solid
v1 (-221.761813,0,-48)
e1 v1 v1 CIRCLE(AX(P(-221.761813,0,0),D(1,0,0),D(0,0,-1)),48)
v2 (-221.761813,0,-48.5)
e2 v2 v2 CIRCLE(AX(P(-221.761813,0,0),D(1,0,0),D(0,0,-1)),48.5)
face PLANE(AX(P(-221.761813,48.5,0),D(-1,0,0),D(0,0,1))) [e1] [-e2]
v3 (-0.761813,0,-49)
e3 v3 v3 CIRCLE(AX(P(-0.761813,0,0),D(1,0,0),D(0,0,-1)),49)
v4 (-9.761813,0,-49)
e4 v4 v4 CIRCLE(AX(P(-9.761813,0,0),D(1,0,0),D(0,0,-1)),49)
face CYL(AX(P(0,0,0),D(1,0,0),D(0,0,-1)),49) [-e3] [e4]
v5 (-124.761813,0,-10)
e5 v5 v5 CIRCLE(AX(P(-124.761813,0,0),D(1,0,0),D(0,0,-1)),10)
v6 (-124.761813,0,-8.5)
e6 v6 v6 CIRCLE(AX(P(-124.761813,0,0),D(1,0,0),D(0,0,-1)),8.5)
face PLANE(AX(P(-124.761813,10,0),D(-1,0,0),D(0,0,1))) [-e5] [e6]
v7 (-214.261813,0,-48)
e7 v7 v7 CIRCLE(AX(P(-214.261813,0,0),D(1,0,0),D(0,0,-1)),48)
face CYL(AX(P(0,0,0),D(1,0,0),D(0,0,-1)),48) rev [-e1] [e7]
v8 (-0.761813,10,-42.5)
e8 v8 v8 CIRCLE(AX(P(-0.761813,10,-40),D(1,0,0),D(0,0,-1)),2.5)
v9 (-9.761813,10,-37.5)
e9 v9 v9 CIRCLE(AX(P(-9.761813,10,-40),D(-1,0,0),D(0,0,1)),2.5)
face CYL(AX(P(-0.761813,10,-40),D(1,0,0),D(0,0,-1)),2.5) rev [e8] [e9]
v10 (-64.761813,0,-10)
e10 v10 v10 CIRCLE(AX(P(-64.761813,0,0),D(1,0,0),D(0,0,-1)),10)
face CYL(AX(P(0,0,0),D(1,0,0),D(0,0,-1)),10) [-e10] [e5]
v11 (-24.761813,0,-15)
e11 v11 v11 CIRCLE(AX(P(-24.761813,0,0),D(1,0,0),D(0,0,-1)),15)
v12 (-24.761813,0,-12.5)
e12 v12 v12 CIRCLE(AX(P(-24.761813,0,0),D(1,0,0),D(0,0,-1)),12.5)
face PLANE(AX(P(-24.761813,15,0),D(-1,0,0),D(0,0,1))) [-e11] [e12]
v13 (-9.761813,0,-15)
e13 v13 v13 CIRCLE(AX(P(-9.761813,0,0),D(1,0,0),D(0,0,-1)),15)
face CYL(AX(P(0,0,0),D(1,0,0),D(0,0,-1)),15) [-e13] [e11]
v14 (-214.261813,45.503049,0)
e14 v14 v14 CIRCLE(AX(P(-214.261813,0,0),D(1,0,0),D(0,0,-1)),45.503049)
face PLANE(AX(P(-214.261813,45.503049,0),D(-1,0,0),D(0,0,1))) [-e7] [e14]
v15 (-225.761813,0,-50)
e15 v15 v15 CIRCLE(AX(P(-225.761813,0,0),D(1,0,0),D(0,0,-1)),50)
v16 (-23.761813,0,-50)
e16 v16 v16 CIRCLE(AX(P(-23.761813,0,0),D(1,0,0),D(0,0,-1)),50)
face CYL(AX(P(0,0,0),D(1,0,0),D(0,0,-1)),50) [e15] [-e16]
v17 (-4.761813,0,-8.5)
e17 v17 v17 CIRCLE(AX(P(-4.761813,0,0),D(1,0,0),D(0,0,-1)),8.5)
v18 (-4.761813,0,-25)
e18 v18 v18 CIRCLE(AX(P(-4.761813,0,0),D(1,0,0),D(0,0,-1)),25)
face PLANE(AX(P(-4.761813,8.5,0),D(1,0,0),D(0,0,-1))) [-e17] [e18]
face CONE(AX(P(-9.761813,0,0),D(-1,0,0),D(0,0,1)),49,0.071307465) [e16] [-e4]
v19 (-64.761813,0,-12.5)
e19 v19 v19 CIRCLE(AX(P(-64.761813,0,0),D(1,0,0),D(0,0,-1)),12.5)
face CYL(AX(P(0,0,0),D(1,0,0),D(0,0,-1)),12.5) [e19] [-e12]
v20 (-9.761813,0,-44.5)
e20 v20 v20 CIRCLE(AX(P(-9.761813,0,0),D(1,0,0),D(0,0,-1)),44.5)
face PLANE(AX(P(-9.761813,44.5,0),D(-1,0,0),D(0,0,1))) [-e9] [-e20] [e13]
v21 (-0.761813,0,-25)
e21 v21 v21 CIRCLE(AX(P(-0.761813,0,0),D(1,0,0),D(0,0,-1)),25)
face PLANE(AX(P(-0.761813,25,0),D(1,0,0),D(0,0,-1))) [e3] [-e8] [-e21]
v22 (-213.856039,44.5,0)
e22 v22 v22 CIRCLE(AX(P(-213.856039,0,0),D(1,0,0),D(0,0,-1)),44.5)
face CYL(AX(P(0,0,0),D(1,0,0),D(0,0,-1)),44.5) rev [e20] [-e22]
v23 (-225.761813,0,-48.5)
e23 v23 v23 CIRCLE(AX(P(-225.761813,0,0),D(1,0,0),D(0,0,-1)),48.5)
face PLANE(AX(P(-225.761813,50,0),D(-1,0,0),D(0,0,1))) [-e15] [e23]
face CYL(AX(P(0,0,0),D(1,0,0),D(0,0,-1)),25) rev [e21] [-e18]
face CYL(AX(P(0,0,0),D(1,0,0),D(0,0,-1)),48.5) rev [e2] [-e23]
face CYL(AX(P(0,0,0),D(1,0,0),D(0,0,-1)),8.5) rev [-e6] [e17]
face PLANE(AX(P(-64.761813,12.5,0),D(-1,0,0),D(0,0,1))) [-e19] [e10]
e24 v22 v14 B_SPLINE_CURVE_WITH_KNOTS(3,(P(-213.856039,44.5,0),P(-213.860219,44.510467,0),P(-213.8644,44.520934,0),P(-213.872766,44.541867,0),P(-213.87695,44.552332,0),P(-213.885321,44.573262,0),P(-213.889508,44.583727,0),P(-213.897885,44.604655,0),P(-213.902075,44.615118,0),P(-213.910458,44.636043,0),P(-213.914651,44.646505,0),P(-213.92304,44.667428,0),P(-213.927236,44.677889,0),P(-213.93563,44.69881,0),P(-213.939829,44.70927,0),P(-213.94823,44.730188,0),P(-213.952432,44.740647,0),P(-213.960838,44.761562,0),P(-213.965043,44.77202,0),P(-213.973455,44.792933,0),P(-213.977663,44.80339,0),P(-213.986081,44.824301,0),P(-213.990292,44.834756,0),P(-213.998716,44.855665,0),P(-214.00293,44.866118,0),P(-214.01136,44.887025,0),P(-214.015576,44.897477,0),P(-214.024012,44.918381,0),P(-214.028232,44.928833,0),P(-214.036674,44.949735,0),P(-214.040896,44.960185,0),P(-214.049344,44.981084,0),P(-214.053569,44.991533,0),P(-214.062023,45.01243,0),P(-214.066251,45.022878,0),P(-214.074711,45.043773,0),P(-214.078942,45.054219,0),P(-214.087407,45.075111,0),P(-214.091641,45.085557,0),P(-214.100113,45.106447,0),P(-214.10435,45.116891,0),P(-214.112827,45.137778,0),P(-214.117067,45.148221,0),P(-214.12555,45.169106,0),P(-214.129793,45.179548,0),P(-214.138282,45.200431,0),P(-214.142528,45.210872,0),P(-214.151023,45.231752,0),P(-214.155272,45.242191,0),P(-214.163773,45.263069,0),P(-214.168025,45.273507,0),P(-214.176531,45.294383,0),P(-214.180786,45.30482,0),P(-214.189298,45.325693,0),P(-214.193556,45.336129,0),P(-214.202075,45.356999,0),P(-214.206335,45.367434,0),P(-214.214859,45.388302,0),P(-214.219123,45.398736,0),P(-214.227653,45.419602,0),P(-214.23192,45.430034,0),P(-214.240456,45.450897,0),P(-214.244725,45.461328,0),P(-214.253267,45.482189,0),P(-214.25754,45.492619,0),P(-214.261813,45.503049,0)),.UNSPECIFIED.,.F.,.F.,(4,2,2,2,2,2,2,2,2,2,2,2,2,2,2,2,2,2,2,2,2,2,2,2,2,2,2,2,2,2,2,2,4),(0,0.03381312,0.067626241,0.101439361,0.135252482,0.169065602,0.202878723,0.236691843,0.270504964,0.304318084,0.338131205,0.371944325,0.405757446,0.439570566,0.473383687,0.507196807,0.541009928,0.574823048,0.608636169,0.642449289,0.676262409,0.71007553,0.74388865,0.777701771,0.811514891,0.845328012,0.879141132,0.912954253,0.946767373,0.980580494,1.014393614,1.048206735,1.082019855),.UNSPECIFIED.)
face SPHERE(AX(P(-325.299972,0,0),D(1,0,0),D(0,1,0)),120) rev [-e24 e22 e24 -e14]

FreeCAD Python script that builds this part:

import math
import FreeCAD as App
import Part
import Sketcher

doc = App.newDocument("Part")
body = doc.addObject("PartDesign::Body", "Body")

# Sketch on XY plane
sketch1 = body.newObject("Sketcher::SketchObject", "Sketch")
sketch1.AttachmentSupport = (doc.getObject("XY_Plane"), [""])
sketch1.MapMode = "FlatFace"
sketch1.addGeometry(Part.LineSegment(App.Vector(-0.8, 25, 0), App.Vector(-0.8, 49, 0)), False)
sketch1.addGeometry(Part.LineSegment(App.Vector(-0.8, 49, 0), App.Vector(-9.8, 49, 0)), False)
sketch1.addGeometry(Part.LineSegment(App.Vector(-9.8, 49, 0), App.Vector(-23.8, 50, 0)), False)
sketch1.addGeometry(Part.LineSegment(App.Vector(-23.8, 50, 0), App.Vector(-225.8, 50, 0)), False)
sketch1.addGeometry(Part.LineSegment(App.Vector(-225.8, 50, 0), App.Vector(-225.8, 48.5, 0)), False)
sketch1.addGeometry(Part.LineSegment(App.Vector(-225.8, 48.5, 0), App.Vector(-221.8, 48.5, 0)), False)
sketch1.addGeometry(Part.LineSegment(App.Vector(-221.8, 48.5, 0), App.Vector(-221.8, 48, 0)), False)
sketch1.addGeometry(Part.LineSegment(App.Vector(-221.8, 48, 0), App.Vector(-214.3, 48, 0)), False)
sketch1.addGeometry(Part.LineSegment(App.Vector(-214.3, 48, 0), App.Vector(-214.3, 45.5, 0)), False)
sketch1.addGeometry(Part.ArcOfCircle(Part.Circle(App.Vector(-325.3, 0, 0), App.Vector(0, 0, 1), 120), math.radians(21.77), math.radians(22.28)), False)
sketch1.addGeometry(Part.LineSegment(App.Vector(-213.9, 44.5, 0), App.Vector(-9.8, 44.5, 0)), False)
sketch1.addGeometry(Part.LineSegment(App.Vector(-9.8, 44.5, 0), App.Vector(-9.8, 15, 0)), False)
sketch1.addGeometry(Part.LineSegment(App.Vector(-9.8, 15, 0), App.Vector(-24.8, 15, 0)), False)
sketch1.addGeometry(Part.LineSegment(App.Vector(-24.8, 15, 0), App.Vector(-24.8, 12.5, 0)), False)
sketch1.addGeometry(Part.LineSegment(App.Vector(-24.8, 12.5, 0), App.Vector(-64.8, 12.5, 0)), False)
sketch1.addGeometry(Part.LineSegment(App.Vector(-64.8, 12.5, 0), App.Vector(-64.8, 10, 0)), False)
sketch1.addGeometry(Part.LineSegment(App.Vector(-64.8, 10, 0), App.Vector(-124.8, 10, 0)), False)
sketch1.addGeometry(Part.LineSegment(App.Vector(-124.8, 10, 0), App.Vector(-124.8, 8.5, 0)), False)
sketch1.addGeometry(Part.LineSegment(App.Vector(-124.8, 8.5, 0), App.Vector(-4.8, 8.5, 0)), False)
sketch1.addGeometry(Part.LineSegment(App.Vector(-4.8, 8.5, 0), App.Vector(-4.8, 25, 0)), False)
sketch1.addGeometry(Part.LineSegment(App.Vector(-4.8, 25, 0), App.Vector(-0.8, 25, 0)), False)
sketch1.addConstraint(Sketcher.Constraint("Coincident", 0, 2, 1, 1))
sketch1.addConstraint(Sketcher.Constraint("Coincident", 1, 2, 2, 1))
sketch1.addConstraint(Sketcher.Constraint("Coincident", 2, 2, 3, 1))
sketch1.addConstraint(Sketcher.Constraint("Coincident", 3, 2, 4, 1))
sketch1.addConstraint(Sketcher.Constraint("Coincident", 4, 2, 5, 1))
sketch1.addConstraint(Sketcher.Constraint("Coincident", 5, 2, 6, 1))
sketch1.addConstraint(Sketcher.Constraint("Coincident", 6, 2, 7, 1))
sketch1.addConstraint(Sketcher.Constraint("Coincident", 7, 2, 8, 1))
sketch1.addConstraint(Sketcher.Constraint("Coincident", 8, 2, 9, 2))
sketch1.addConstraint(Sketcher.Constraint("Coincident", 9, 1, 10, 1))
sketch1.addConstraint(Sketcher.Constraint("Coincident", 10, 2, 11, 1))
sketch1.addConstraint(Sketcher.Constraint("Coincident", 11, 2, 12, 1))
sketch1.addConstraint(Sketcher.Constraint("Coincident", 12, 2, 13, 1))
sketch1.addConstraint(Sketcher.Constraint("Coincident", 13, 2, 14, 1))
sketch1.addConstraint(Sketcher.Constraint("Coincident", 14, 2, 15, 1))
sketch1.addConstraint(Sketcher.Constraint("Coincident", 15, 2, 16, 1))
sketch1.addConstraint(Sketcher.Constraint("Coincident", 16, 2, 17, 1))
sketch1.addConstraint(Sketcher.Constraint("Coincident", 17, 2, 18, 1))
sketch1.addConstraint(Sketcher.Constraint("Coincident", 18, 2, 19, 1))
sketch1.addConstraint(Sketcher.Constraint("Coincident", 19, 2, 20, 1))
sketch1.addConstraint(Sketcher.Constraint("Coincident", 20, 2, 0, 1))
sketch1.addConstraint(Sketcher.Constraint("Vertical", 0))
sketch1.addConstraint(Sketcher.Constraint("Horizontal", 1))
sketch1.addConstraint(Sketcher.Constraint("Horizontal", 3))
sketch1.addConstraint(Sketcher.Constraint("Vertical", 4))
sketch1.addConstraint(Sketcher.Constraint("Horizontal", 5))
sketch1.addConstraint(Sketcher.Constraint("Vertical", 6))
sketch1.addConstraint(Sketcher.Constraint("Horizontal", 7))
sketch1.addConstraint(Sketcher.Constraint("Vertical", 8))
sketch1.addConstraint(Sketcher.Constraint("Horizontal", 10))
sketch1.addConstraint(Sketcher.Constraint("Vertical", 11))
sketch1.addConstraint(Sketcher.Constraint("Horizontal", 12))
sketch1.addConstraint(Sketcher.Constraint("Vertical", 13))
sketch1.addConstraint(Sketcher.Constraint("Horizontal", 14))
sketch1.addConstraint(Sketcher.Constraint("Vertical", 15))
sketch1.addConstraint(Sketcher.Constraint("Horizontal", 16))
sketch1.addConstraint(Sketcher.Constraint("Vertical", 17))
sketch1.addConstraint(Sketcher.Constraint("Horizontal", 18))
sketch1.addConstraint(Sketcher.Constraint("Vertical", 19))
sketch1.addConstraint(Sketcher.Constraint("Horizontal", 20))
sketch1.addConstraint(Sketcher.Constraint("Vertical", 1, 2, 10, 2))
sketch1.addConstraint(Sketcher.Constraint("Equal", 5, 20))
sketch1.addConstraint(Sketcher.Constraint("Equal", 13, 15))
sketch1.addConstraint(Sketcher.Constraint("Equal", 4, 17))
sketch1.addConstraint(Sketcher.Constraint("DistanceX", 1, 2, 1, 1, 9.0))
sketch1.addConstraint(Sketcher.Constraint("DistanceX", 3, 2, 3, 1, 202.0))
sketch1.addConstraint(Sketcher.Constraint("DistanceX", 5, 1, 5, 2, 4.0))
sketch1.addConstraint(Sketcher.Constraint("DistanceX", 12, 2, 12, 1, 15.0))
sketch1.addConstraint(Sketcher.Constraint("DistanceX", 14, 2, 14, 1, 40.0))
sketch1.addConstraint(Sketcher.Constraint("DistanceX", 16, 2, 16, 1, 60.0))
sketch1.addConstraint(Sketcher.Constraint("DistanceY", 0, 1, 0, 2, 24.0))
sketch1.addConstraint(Sketcher.Constraint("DistanceX", 7, 1, 7, 2, 7.5))
sketch1.addConstraint(Sketcher.Constraint("DistanceY", 4, 2, 4, 1, 1.5))
sketch1.addConstraint(Sketcher.Constraint("DistanceY", 6, 2, 6, 1, 0.5))
sketch1.addConstraint(Sketcher.Constraint("DistanceY", 11, 2, 11, 1, 29.5))
sketch1.addConstraint(Sketcher.Constraint("DistanceY", 13, 2, 13, 1, 2.5))
sketch1.addConstraint(Sketcher.Constraint("DistanceY", 19, 1, 19, 2, 16.5))
sketch1.addConstraint(Sketcher.Constraint("DistanceY", -1, 1, 0, 2, 49.0))
sketch1.addConstraint(Sketcher.Constraint("DistanceY", -1, 1, 2, 2, 50.0))
sketch1.addConstraint(Sketcher.Constraint("DistanceX", 2, 2, 1, 2, 14.0))
sketch1.addConstraint(Sketcher.Constraint("Radius", 9, 120.00004))
sketch1.addConstraint(Sketcher.Constraint("DistanceY", 8, 2, 8, 1, 2.496951))
sketch1.addConstraint(Sketcher.Constraint("DistanceX", 10, 1, 10, 2, 204.094226))
sketch1.addConstraint(Sketcher.Constraint("DistanceX", 9, 3, -1, 1, 325.300009))
revolution = body.newObject("PartDesign::Revolution", "Revolution")
revolution.Profile = sketch1
revolution.ReferenceAxis = (sketch1, ["H_Axis"])
revolution.Angle = 360

# Sketch on YZ plane
sketch2 = body.newObject("Sketcher::SketchObject", "Sketch001")
sketch2.AttachmentSupport = (doc.getObject("YZ_Plane"), [""])
sketch2.MapMode = "FlatFace"
sketch2.AttachmentOffset = App.Placement(App.Vector(0, 0, -0.761813), App.Rotation())
sketch2.addGeometry(Part.Circle(App.Vector(10, -40, 0), App.Vector(0, 0, 1), 2.5), False)
sketch2.addConstraint(Sketcher.Constraint("Diameter", 0, 5.0))
sketch2.addConstraint(Sketcher.Constraint("DistanceX", -1, 1, 0, 3, 10.0))
sketch2.addConstraint(Sketcher.Constraint("DistanceY", 0, 3, -1, 1, 40.0))
doc.recompute()
hole = body.newObject("PartDesign::Hole", "Hole")
hole.Profile = sketch2
hole.ThreadType = "None"
hole.Diameter = 5
hole.DepthType = "ThroughAll"

doc.recompute()
